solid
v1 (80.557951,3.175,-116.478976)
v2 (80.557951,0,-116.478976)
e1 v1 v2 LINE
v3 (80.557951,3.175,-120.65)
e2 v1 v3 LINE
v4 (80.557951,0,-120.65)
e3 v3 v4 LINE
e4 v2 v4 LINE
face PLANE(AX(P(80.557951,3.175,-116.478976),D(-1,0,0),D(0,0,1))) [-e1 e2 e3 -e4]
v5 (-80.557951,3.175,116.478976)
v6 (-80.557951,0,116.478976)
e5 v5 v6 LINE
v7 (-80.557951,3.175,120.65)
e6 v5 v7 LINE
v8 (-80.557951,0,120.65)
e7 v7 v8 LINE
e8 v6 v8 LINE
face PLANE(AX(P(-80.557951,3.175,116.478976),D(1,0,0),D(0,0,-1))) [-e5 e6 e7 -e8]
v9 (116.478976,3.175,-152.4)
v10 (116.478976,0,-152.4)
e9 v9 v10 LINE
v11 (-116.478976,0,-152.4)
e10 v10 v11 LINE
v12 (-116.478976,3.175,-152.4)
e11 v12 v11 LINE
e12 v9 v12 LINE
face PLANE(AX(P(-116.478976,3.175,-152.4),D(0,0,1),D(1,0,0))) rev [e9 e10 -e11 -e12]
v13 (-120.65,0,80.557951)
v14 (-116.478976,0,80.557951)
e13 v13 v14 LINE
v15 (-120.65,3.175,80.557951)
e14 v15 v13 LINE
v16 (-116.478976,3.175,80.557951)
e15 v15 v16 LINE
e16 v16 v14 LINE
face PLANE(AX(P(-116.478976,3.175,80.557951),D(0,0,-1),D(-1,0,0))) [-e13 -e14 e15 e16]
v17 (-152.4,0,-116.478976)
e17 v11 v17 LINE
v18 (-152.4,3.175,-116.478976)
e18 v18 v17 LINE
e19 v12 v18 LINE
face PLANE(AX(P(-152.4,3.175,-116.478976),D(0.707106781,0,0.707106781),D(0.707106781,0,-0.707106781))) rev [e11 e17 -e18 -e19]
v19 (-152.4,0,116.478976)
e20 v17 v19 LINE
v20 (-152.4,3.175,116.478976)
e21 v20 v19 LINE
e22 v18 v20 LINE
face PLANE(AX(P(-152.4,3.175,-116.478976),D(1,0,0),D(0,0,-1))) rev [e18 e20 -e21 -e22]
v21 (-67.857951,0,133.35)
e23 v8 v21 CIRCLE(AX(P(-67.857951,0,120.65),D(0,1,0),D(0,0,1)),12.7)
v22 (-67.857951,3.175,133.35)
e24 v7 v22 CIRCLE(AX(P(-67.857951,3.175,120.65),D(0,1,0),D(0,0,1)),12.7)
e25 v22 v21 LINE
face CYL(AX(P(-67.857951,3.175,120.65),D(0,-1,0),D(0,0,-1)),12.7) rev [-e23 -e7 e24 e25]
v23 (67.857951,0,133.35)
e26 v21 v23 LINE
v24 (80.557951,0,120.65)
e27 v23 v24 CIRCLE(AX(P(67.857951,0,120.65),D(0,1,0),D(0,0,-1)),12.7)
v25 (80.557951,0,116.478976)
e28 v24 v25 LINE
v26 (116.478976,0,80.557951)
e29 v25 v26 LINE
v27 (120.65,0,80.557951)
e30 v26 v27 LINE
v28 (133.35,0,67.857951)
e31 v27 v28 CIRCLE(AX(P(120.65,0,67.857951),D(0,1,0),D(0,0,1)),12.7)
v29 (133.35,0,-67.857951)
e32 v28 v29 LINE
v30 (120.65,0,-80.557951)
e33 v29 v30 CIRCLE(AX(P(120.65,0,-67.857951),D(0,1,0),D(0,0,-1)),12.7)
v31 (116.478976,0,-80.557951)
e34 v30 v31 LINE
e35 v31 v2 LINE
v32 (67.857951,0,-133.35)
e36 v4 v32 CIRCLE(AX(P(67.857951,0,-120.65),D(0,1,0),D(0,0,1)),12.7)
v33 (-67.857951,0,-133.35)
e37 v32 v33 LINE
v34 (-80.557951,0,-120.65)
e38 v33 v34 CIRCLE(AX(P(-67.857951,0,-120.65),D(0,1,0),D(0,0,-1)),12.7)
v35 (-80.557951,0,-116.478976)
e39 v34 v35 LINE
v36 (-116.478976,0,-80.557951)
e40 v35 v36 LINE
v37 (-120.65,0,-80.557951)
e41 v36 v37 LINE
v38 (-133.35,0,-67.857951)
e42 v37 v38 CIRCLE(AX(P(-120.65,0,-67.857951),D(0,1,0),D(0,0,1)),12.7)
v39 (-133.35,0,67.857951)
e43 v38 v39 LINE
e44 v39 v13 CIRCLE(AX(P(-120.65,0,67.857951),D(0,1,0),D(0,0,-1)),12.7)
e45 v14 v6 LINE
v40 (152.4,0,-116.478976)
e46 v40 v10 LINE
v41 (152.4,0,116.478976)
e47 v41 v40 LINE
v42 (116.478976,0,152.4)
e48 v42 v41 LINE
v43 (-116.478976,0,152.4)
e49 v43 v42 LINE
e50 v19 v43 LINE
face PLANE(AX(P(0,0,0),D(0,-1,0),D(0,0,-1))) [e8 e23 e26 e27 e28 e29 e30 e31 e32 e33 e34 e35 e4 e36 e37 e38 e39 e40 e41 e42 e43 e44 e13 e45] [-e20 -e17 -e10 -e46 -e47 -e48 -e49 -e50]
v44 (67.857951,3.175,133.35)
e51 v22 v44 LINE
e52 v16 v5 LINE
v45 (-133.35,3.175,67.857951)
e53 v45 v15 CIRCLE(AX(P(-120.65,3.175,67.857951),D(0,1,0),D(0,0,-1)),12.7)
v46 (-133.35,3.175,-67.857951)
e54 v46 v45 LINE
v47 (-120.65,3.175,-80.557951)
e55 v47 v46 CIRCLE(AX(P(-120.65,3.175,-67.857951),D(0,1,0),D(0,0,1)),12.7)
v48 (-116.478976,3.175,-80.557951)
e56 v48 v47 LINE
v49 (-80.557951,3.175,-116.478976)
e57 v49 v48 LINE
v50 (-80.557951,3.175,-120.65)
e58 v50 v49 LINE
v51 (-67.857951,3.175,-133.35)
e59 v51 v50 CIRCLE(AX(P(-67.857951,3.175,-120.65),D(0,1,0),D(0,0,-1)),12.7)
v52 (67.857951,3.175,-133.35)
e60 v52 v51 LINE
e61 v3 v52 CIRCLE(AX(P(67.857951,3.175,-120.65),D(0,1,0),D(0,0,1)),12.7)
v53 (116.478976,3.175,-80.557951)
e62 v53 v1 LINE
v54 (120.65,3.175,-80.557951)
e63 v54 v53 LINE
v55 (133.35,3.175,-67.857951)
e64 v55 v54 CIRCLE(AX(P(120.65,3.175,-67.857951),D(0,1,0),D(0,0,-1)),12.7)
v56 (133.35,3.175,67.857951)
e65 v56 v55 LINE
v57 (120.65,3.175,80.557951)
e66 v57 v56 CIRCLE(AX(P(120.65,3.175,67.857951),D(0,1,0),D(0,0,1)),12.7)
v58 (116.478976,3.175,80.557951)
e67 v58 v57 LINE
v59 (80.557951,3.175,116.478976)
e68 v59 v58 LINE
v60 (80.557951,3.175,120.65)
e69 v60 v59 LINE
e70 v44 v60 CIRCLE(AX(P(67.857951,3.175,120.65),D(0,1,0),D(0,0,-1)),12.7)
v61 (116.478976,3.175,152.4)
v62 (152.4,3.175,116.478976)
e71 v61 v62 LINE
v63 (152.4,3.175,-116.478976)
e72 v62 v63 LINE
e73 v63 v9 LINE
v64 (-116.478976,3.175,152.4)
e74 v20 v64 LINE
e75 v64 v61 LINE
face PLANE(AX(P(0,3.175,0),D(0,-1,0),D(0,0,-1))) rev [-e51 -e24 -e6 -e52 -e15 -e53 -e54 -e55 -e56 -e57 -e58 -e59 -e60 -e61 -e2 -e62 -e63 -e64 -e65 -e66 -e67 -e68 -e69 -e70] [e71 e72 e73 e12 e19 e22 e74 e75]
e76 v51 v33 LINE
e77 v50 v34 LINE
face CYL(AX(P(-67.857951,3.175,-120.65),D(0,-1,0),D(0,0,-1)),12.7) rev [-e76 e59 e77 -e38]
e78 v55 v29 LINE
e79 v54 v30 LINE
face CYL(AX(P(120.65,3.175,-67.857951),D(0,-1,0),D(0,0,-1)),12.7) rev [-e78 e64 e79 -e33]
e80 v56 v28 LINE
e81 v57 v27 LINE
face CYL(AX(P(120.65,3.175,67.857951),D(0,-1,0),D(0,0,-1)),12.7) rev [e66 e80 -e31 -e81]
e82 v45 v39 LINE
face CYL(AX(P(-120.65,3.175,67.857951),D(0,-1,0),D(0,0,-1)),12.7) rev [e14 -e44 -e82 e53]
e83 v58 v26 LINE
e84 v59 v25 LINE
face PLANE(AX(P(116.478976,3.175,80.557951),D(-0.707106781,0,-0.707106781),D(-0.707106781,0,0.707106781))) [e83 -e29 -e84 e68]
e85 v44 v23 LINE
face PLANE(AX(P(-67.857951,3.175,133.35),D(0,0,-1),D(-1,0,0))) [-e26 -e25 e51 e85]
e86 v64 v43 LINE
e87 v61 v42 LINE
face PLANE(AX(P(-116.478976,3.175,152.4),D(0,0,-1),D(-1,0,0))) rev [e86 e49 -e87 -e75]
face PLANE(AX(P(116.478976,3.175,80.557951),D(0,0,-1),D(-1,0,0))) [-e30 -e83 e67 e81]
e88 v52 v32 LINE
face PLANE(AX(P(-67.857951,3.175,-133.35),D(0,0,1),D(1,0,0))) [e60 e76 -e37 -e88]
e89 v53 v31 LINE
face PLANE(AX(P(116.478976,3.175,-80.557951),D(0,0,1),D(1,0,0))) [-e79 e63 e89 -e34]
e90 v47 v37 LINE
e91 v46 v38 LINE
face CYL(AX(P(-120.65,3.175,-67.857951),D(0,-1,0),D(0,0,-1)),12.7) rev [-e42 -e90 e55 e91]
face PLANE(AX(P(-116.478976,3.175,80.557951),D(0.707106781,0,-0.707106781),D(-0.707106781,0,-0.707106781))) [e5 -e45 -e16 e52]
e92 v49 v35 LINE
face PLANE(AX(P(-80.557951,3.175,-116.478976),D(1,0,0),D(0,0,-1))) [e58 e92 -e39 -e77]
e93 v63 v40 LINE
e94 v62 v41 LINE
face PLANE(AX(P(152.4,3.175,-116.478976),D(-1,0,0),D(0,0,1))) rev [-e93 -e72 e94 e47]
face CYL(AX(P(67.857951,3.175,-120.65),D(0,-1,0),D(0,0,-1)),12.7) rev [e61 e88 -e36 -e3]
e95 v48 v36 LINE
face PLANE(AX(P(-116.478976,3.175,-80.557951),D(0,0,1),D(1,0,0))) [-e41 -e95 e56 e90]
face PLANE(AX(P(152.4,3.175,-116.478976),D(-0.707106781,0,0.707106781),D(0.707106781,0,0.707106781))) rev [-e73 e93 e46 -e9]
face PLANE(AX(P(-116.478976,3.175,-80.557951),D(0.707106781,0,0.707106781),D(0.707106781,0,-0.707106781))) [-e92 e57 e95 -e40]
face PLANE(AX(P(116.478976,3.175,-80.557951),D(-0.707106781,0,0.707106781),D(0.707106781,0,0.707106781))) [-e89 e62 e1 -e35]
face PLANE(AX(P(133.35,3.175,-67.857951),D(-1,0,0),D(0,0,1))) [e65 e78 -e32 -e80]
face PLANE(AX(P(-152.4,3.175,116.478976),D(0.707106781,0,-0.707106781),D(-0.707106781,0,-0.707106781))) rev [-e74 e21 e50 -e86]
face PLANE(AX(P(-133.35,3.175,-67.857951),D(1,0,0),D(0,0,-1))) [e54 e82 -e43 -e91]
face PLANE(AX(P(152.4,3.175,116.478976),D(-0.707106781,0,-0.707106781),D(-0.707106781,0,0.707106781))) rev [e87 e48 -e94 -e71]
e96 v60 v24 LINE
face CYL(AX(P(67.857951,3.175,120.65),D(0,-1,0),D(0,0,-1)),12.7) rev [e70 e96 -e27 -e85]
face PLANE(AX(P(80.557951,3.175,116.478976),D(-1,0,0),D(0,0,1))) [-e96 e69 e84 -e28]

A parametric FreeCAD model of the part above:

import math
import FreeCAD as App
import Part
import Sketcher

V = App.Vector
Q = App.Units.Quantity

doc = App.newDocument("Part")
body = doc.addObject("PartDesign::Body", "Body")

# Sketch on XZ plane
sketch1 = body.newObject("Sketcher::SketchObject", "Sketch")
sketch1.AttachmentSupport = (doc.getObject("XZ_Plane"), [""])
sketch1.MapMode = "FlatFace"
sketch1.addGeometry([
    Part.LineSegment(V(-116.5, -152.4, 0), V(-152.4, -116.5, 0)),  # 0
    Part.LineSegment(V(-152.4, -116.5, 0), V(-152.4, 116.5, 0)),  # 1
    Part.LineSegment(V(-152.4, 116.5, 0), V(-116.5, 152.4, 0)),  # 2
    Part.LineSegment(V(-116.5, 152.4, 0), V(116.5, 152.4, 0)),  # 3
    Part.LineSegment(V(116.5, 152.4, 0), V(152.4, 116.5, 0)),  # 4
    Part.LineSegment(V(152.4, 116.5, 0), V(152.4, -116.5, 0)),  # 5
    Part.LineSegment(V(152.4, -116.5, 0), V(116.5, -152.4, 0)),  # 6
    Part.LineSegment(V(116.5, -152.4, 0), V(-116.5, -152.4, 0)),  # 7
    Part.LineSegment(V(-116.5, -80.6, 0), V(-80.6, -116.5, 0)),  # 8
    Part.LineSegment(V(-80.6, -116.5, 0), V(-80.6, -120.7, 0)),  # 9
    Part.ArcOfCircle(Part.Circle(V(-67.9, -120.7, 0), V(0, 0, 1), 12.7), math.radians(180), math.radians(270)),  # 10
    Part.LineSegment(V(-67.9, -133.3, 0), V(67.9, -133.3, 0)),  # 11
    Part.ArcOfCircle(Part.Circle(V(67.9, -120.7, 0), V(0, 0, 1), 12.7), math.radians(-90), math.radians(0)),  # 12
    Part.LineSegment(V(80.6, -120.7, 0), V(80.6, -116.5, 0)),  # 13
    Part.LineSegment(V(80.6, -116.5, 0), V(116.5, -80.6, 0)),  # 14
    Part.LineSegment(V(116.5, -80.6, 0), V(120.7, -80.6, 0)),  # 15
    Part.ArcOfCircle(Part.Circle(V(120.7, -67.9, 0), V(0, 0, 1), 12.7), math.radians(-90), math.radians(0)),  # 16
    Part.LineSegment(V(133.3, -67.9, 0), V(133.3, 67.9, 0)),  # 17
    Part.ArcOfCircle(Part.Circle(V(120.7, 67.9, 0), V(0, 0, 1), 12.7), math.radians(0), math.radians(90)),  # 18
    Part.LineSegment(V(120.7, 80.6, 0), V(116.5, 80.6, 0)),  # 19
    Part.LineSegment(V(116.5, 80.6, 0), V(80.6, 116.5, 0)),  # 20
    Part.LineSegment(V(80.6, 116.5, 0), V(80.6, 120.7, 0)),  # 21
    Part.ArcOfCircle(Part.Circle(V(67.9, 120.7, 0), V(0, 0, 1), 12.7), math.radians(0), math.radians(90)),  # 22
    Part.LineSegment(V(67.9, 133.3, 0), V(-67.9, 133.3, 0)),  # 23
    Part.ArcOfCircle(Part.Circle(V(-67.9, 120.7, 0), V(0, 0, 1), 12.7), math.radians(90), math.radians(180)),  # 24
    Part.LineSegment(V(-80.6, 120.7, 0), V(-80.6, 116.5, 0)),  # 25
    Part.LineSegment(V(-80.6, 116.5, 0), V(-116.5, 80.6, 0)),  # 26
    Part.LineSegment(V(-116.5, 80.6, 0), V(-120.7, 80.6, 0)),  # 27
    Part.ArcOfCircle(Part.Circle(V(-120.7, 67.9, 0), V(0, 0, 1), 12.7), math.radians(90), math.radians(180)),  # 28
    Part.LineSegment(V(-133.3, 67.9, 0), V(-133.3, -67.9, 0)),  # 29
    Part.ArcOfCircle(Part.Circle(V(-120.7, -67.9, 0), V(0, 0, 1), 12.7), math.radians(180), math.radians(270)),  # 30
    Part.LineSegment(V(-120.7, -80.6, 0), V(-116.5, -80.6, 0)),  # 31
], False)
sketch1.addConstraint([
    Sketcher.Constraint("Coincident", 0, 2, 1, 1),
    Sketcher.Constraint("Coincident", 1, 2, 2, 1),
    Sketcher.Constraint("Coincident", 2, 2, 3, 1),
    Sketcher.Constraint("Coincident", 3, 2, 4, 1),
    Sketcher.Constraint("Coincident", 4, 2, 5, 1),
    Sketcher.Constraint("Coincident", 5, 2, 6, 1),
    Sketcher.Constraint("Coincident", 6, 2, 7, 1),
    Sketcher.Constraint("Coincident", 7, 2, 0, 1),
    Sketcher.Constraint("Coincident", 8, 2, 9, 1),
    Sketcher.Constraint("Tangent", 9, 2, 10, 1),
    Sketcher.Constraint("Tangent", 10, 2, 11, 1),
    Sketcher.Constraint("Tangent", 11, 2, 12, 1),
    Sketcher.Constraint("Tangent", 12, 2, 13, 1),
    Sketcher.Constraint("Coincident", 13, 2, 14, 1),
    Sketcher.Constraint("Coincident", 14, 2, 15, 1),
    Sketcher.Constraint("Tangent", 15, 2, 16, 1),
    Sketcher.Constraint("Tangent", 16, 2, 17, 1),
    Sketcher.Constraint("Tangent", 17, 2, 18, 1),
    Sketcher.Constraint("Tangent", 18, 2, 19, 1),
    Sketcher.Constraint("Coincident", 19, 2, 20, 1),
    Sketcher.Constraint("Coincident", 20, 2, 21, 1),
    Sketcher.Constraint("Tangent", 21, 2, 22, 1),
    Sketcher.Constraint("Tangent", 22, 2, 23, 1),
    Sketcher.Constraint("Tangent", 23, 2, 24, 1),
    Sketcher.Constraint("Tangent", 24, 2, 25, 1),
    Sketcher.Constraint("Coincident", 25, 2, 26, 1),
    Sketcher.Constraint("Coincident", 26, 2, 27, 1),
    Sketcher.Constraint("Tangent", 27, 2, 28, 1),
    Sketcher.Constraint("Tangent", 28, 2, 29, 1),
    Sketcher.Constraint("Tangent", 29, 2, 30, 1),
    Sketcher.Constraint("Tangent", 30, 2, 31, 1),
    Sketcher.Constraint("Coincident", 31, 2, 8, 1),
    Sketcher.Constraint("Vertical", 1),
    Sketcher.Constraint("Horizontal", 3),
    Sketcher.Constraint("Vertical", 5),
    Sketcher.Constraint("Horizontal", 7),
    Sketcher.Constraint("Vertical", 9),
    Sketcher.Constraint("Horizontal", 11),
    Sketcher.Constraint("Vertical", 13),
    Sketcher.Constraint("Horizontal", 15),
    Sketcher.Constraint("Vertical", 17),
    Sketcher.Constraint("Horizontal", 19),
    Sketcher.Constraint("Vertical", 21),
    Sketcher.Constraint("Horizontal", 23),
    Sketcher.Constraint("Vertical", 25),
    Sketcher.Constraint("Horizontal", 27),
    Sketcher.Constraint("Vertical", 29),
    Sketcher.Constraint("Horizontal", 31),
    Sketcher.Constraint("Equal", 10, 12),
    Sketcher.Constraint("Equal", 12, 16),
    Sketcher.Constraint("Equal", 16, 18),
    Sketcher.Constraint("Equal", 18, 22),
    Sketcher.Constraint("Equal", 22, 24),
    Sketcher.Constraint("Equal", 24, 28),
    Sketcher.Constraint("Equal", 28, 30),
    Sketcher.Constraint("Symmetric", 10, 3, 22, 3, -1, 1),
    Sketcher.Constraint("Symmetric", 16, 3, 28, 3, -1, 1),
    Sketcher.Constraint("Symmetric", 0, 2, 4, 2, -1, 1),
    Sketcher.Constraint("Symmetric", 2, 2, 6, 2, -1, 1),
    Sketcher.Constraint("Symmetric", 13, 2, 25, 2, -1, 1),
    Sketcher.Constraint("Symmetric", 19, 2, 31, 2, -1, 1),
    Sketcher.Constraint("Symmetric", 8, 2, 13, 2, -2),
    Sketcher.Constraint("Symmetric", 19, 2, 26, 2, -2),
    Sketcher.Constraint("Perpendicular", 0, 2),
    Sketcher.Constraint("Perpendicular", 2, 4),
    Sketcher.Constraint("Perpendicular", 4, 6),
    Sketcher.Constraint("Perpendicular", 6, 8),
    Sketcher.Constraint("Perpendicular", 8, 14),
    Sketcher.Constraint("Perpendicular", 14, 20),
    Sketcher.Constraint("Perpendicular", 20, 26),
    Sketcher.Constraint("Horizontal", 1, 2, 4, 2),
    Sketcher.Constraint("Horizontal", 5, 2, 8, 2),
    Sketcher.Constraint("Vertical", 6, 2, 14, 2),
    Sketcher.Constraint("Equal", 7, 1),
    Sketcher.Constraint("Equal", 31, 9),
    Sketcher.Constraint("Equal", 6, 8),
    Sketcher.Constraint("Radius", 10, Q("0.5 in")),
    Sketcher.Constraint("Distance", 0, Q("2 in")),
    Sketcher.Constraint("DistanceX", 0, 2, -1, 1, Q("6 in")),
    Sketcher.Constraint("DistanceY", 12, 3, 22, 3, Q("9.5 in")),
])
pad1 = body.newObject("PartDesign::Pad", "Pad")
pad1.Profile = sketch1
pad1.Length = Q("0.125 in")
pad1.Reversed = True

doc.recompute()
